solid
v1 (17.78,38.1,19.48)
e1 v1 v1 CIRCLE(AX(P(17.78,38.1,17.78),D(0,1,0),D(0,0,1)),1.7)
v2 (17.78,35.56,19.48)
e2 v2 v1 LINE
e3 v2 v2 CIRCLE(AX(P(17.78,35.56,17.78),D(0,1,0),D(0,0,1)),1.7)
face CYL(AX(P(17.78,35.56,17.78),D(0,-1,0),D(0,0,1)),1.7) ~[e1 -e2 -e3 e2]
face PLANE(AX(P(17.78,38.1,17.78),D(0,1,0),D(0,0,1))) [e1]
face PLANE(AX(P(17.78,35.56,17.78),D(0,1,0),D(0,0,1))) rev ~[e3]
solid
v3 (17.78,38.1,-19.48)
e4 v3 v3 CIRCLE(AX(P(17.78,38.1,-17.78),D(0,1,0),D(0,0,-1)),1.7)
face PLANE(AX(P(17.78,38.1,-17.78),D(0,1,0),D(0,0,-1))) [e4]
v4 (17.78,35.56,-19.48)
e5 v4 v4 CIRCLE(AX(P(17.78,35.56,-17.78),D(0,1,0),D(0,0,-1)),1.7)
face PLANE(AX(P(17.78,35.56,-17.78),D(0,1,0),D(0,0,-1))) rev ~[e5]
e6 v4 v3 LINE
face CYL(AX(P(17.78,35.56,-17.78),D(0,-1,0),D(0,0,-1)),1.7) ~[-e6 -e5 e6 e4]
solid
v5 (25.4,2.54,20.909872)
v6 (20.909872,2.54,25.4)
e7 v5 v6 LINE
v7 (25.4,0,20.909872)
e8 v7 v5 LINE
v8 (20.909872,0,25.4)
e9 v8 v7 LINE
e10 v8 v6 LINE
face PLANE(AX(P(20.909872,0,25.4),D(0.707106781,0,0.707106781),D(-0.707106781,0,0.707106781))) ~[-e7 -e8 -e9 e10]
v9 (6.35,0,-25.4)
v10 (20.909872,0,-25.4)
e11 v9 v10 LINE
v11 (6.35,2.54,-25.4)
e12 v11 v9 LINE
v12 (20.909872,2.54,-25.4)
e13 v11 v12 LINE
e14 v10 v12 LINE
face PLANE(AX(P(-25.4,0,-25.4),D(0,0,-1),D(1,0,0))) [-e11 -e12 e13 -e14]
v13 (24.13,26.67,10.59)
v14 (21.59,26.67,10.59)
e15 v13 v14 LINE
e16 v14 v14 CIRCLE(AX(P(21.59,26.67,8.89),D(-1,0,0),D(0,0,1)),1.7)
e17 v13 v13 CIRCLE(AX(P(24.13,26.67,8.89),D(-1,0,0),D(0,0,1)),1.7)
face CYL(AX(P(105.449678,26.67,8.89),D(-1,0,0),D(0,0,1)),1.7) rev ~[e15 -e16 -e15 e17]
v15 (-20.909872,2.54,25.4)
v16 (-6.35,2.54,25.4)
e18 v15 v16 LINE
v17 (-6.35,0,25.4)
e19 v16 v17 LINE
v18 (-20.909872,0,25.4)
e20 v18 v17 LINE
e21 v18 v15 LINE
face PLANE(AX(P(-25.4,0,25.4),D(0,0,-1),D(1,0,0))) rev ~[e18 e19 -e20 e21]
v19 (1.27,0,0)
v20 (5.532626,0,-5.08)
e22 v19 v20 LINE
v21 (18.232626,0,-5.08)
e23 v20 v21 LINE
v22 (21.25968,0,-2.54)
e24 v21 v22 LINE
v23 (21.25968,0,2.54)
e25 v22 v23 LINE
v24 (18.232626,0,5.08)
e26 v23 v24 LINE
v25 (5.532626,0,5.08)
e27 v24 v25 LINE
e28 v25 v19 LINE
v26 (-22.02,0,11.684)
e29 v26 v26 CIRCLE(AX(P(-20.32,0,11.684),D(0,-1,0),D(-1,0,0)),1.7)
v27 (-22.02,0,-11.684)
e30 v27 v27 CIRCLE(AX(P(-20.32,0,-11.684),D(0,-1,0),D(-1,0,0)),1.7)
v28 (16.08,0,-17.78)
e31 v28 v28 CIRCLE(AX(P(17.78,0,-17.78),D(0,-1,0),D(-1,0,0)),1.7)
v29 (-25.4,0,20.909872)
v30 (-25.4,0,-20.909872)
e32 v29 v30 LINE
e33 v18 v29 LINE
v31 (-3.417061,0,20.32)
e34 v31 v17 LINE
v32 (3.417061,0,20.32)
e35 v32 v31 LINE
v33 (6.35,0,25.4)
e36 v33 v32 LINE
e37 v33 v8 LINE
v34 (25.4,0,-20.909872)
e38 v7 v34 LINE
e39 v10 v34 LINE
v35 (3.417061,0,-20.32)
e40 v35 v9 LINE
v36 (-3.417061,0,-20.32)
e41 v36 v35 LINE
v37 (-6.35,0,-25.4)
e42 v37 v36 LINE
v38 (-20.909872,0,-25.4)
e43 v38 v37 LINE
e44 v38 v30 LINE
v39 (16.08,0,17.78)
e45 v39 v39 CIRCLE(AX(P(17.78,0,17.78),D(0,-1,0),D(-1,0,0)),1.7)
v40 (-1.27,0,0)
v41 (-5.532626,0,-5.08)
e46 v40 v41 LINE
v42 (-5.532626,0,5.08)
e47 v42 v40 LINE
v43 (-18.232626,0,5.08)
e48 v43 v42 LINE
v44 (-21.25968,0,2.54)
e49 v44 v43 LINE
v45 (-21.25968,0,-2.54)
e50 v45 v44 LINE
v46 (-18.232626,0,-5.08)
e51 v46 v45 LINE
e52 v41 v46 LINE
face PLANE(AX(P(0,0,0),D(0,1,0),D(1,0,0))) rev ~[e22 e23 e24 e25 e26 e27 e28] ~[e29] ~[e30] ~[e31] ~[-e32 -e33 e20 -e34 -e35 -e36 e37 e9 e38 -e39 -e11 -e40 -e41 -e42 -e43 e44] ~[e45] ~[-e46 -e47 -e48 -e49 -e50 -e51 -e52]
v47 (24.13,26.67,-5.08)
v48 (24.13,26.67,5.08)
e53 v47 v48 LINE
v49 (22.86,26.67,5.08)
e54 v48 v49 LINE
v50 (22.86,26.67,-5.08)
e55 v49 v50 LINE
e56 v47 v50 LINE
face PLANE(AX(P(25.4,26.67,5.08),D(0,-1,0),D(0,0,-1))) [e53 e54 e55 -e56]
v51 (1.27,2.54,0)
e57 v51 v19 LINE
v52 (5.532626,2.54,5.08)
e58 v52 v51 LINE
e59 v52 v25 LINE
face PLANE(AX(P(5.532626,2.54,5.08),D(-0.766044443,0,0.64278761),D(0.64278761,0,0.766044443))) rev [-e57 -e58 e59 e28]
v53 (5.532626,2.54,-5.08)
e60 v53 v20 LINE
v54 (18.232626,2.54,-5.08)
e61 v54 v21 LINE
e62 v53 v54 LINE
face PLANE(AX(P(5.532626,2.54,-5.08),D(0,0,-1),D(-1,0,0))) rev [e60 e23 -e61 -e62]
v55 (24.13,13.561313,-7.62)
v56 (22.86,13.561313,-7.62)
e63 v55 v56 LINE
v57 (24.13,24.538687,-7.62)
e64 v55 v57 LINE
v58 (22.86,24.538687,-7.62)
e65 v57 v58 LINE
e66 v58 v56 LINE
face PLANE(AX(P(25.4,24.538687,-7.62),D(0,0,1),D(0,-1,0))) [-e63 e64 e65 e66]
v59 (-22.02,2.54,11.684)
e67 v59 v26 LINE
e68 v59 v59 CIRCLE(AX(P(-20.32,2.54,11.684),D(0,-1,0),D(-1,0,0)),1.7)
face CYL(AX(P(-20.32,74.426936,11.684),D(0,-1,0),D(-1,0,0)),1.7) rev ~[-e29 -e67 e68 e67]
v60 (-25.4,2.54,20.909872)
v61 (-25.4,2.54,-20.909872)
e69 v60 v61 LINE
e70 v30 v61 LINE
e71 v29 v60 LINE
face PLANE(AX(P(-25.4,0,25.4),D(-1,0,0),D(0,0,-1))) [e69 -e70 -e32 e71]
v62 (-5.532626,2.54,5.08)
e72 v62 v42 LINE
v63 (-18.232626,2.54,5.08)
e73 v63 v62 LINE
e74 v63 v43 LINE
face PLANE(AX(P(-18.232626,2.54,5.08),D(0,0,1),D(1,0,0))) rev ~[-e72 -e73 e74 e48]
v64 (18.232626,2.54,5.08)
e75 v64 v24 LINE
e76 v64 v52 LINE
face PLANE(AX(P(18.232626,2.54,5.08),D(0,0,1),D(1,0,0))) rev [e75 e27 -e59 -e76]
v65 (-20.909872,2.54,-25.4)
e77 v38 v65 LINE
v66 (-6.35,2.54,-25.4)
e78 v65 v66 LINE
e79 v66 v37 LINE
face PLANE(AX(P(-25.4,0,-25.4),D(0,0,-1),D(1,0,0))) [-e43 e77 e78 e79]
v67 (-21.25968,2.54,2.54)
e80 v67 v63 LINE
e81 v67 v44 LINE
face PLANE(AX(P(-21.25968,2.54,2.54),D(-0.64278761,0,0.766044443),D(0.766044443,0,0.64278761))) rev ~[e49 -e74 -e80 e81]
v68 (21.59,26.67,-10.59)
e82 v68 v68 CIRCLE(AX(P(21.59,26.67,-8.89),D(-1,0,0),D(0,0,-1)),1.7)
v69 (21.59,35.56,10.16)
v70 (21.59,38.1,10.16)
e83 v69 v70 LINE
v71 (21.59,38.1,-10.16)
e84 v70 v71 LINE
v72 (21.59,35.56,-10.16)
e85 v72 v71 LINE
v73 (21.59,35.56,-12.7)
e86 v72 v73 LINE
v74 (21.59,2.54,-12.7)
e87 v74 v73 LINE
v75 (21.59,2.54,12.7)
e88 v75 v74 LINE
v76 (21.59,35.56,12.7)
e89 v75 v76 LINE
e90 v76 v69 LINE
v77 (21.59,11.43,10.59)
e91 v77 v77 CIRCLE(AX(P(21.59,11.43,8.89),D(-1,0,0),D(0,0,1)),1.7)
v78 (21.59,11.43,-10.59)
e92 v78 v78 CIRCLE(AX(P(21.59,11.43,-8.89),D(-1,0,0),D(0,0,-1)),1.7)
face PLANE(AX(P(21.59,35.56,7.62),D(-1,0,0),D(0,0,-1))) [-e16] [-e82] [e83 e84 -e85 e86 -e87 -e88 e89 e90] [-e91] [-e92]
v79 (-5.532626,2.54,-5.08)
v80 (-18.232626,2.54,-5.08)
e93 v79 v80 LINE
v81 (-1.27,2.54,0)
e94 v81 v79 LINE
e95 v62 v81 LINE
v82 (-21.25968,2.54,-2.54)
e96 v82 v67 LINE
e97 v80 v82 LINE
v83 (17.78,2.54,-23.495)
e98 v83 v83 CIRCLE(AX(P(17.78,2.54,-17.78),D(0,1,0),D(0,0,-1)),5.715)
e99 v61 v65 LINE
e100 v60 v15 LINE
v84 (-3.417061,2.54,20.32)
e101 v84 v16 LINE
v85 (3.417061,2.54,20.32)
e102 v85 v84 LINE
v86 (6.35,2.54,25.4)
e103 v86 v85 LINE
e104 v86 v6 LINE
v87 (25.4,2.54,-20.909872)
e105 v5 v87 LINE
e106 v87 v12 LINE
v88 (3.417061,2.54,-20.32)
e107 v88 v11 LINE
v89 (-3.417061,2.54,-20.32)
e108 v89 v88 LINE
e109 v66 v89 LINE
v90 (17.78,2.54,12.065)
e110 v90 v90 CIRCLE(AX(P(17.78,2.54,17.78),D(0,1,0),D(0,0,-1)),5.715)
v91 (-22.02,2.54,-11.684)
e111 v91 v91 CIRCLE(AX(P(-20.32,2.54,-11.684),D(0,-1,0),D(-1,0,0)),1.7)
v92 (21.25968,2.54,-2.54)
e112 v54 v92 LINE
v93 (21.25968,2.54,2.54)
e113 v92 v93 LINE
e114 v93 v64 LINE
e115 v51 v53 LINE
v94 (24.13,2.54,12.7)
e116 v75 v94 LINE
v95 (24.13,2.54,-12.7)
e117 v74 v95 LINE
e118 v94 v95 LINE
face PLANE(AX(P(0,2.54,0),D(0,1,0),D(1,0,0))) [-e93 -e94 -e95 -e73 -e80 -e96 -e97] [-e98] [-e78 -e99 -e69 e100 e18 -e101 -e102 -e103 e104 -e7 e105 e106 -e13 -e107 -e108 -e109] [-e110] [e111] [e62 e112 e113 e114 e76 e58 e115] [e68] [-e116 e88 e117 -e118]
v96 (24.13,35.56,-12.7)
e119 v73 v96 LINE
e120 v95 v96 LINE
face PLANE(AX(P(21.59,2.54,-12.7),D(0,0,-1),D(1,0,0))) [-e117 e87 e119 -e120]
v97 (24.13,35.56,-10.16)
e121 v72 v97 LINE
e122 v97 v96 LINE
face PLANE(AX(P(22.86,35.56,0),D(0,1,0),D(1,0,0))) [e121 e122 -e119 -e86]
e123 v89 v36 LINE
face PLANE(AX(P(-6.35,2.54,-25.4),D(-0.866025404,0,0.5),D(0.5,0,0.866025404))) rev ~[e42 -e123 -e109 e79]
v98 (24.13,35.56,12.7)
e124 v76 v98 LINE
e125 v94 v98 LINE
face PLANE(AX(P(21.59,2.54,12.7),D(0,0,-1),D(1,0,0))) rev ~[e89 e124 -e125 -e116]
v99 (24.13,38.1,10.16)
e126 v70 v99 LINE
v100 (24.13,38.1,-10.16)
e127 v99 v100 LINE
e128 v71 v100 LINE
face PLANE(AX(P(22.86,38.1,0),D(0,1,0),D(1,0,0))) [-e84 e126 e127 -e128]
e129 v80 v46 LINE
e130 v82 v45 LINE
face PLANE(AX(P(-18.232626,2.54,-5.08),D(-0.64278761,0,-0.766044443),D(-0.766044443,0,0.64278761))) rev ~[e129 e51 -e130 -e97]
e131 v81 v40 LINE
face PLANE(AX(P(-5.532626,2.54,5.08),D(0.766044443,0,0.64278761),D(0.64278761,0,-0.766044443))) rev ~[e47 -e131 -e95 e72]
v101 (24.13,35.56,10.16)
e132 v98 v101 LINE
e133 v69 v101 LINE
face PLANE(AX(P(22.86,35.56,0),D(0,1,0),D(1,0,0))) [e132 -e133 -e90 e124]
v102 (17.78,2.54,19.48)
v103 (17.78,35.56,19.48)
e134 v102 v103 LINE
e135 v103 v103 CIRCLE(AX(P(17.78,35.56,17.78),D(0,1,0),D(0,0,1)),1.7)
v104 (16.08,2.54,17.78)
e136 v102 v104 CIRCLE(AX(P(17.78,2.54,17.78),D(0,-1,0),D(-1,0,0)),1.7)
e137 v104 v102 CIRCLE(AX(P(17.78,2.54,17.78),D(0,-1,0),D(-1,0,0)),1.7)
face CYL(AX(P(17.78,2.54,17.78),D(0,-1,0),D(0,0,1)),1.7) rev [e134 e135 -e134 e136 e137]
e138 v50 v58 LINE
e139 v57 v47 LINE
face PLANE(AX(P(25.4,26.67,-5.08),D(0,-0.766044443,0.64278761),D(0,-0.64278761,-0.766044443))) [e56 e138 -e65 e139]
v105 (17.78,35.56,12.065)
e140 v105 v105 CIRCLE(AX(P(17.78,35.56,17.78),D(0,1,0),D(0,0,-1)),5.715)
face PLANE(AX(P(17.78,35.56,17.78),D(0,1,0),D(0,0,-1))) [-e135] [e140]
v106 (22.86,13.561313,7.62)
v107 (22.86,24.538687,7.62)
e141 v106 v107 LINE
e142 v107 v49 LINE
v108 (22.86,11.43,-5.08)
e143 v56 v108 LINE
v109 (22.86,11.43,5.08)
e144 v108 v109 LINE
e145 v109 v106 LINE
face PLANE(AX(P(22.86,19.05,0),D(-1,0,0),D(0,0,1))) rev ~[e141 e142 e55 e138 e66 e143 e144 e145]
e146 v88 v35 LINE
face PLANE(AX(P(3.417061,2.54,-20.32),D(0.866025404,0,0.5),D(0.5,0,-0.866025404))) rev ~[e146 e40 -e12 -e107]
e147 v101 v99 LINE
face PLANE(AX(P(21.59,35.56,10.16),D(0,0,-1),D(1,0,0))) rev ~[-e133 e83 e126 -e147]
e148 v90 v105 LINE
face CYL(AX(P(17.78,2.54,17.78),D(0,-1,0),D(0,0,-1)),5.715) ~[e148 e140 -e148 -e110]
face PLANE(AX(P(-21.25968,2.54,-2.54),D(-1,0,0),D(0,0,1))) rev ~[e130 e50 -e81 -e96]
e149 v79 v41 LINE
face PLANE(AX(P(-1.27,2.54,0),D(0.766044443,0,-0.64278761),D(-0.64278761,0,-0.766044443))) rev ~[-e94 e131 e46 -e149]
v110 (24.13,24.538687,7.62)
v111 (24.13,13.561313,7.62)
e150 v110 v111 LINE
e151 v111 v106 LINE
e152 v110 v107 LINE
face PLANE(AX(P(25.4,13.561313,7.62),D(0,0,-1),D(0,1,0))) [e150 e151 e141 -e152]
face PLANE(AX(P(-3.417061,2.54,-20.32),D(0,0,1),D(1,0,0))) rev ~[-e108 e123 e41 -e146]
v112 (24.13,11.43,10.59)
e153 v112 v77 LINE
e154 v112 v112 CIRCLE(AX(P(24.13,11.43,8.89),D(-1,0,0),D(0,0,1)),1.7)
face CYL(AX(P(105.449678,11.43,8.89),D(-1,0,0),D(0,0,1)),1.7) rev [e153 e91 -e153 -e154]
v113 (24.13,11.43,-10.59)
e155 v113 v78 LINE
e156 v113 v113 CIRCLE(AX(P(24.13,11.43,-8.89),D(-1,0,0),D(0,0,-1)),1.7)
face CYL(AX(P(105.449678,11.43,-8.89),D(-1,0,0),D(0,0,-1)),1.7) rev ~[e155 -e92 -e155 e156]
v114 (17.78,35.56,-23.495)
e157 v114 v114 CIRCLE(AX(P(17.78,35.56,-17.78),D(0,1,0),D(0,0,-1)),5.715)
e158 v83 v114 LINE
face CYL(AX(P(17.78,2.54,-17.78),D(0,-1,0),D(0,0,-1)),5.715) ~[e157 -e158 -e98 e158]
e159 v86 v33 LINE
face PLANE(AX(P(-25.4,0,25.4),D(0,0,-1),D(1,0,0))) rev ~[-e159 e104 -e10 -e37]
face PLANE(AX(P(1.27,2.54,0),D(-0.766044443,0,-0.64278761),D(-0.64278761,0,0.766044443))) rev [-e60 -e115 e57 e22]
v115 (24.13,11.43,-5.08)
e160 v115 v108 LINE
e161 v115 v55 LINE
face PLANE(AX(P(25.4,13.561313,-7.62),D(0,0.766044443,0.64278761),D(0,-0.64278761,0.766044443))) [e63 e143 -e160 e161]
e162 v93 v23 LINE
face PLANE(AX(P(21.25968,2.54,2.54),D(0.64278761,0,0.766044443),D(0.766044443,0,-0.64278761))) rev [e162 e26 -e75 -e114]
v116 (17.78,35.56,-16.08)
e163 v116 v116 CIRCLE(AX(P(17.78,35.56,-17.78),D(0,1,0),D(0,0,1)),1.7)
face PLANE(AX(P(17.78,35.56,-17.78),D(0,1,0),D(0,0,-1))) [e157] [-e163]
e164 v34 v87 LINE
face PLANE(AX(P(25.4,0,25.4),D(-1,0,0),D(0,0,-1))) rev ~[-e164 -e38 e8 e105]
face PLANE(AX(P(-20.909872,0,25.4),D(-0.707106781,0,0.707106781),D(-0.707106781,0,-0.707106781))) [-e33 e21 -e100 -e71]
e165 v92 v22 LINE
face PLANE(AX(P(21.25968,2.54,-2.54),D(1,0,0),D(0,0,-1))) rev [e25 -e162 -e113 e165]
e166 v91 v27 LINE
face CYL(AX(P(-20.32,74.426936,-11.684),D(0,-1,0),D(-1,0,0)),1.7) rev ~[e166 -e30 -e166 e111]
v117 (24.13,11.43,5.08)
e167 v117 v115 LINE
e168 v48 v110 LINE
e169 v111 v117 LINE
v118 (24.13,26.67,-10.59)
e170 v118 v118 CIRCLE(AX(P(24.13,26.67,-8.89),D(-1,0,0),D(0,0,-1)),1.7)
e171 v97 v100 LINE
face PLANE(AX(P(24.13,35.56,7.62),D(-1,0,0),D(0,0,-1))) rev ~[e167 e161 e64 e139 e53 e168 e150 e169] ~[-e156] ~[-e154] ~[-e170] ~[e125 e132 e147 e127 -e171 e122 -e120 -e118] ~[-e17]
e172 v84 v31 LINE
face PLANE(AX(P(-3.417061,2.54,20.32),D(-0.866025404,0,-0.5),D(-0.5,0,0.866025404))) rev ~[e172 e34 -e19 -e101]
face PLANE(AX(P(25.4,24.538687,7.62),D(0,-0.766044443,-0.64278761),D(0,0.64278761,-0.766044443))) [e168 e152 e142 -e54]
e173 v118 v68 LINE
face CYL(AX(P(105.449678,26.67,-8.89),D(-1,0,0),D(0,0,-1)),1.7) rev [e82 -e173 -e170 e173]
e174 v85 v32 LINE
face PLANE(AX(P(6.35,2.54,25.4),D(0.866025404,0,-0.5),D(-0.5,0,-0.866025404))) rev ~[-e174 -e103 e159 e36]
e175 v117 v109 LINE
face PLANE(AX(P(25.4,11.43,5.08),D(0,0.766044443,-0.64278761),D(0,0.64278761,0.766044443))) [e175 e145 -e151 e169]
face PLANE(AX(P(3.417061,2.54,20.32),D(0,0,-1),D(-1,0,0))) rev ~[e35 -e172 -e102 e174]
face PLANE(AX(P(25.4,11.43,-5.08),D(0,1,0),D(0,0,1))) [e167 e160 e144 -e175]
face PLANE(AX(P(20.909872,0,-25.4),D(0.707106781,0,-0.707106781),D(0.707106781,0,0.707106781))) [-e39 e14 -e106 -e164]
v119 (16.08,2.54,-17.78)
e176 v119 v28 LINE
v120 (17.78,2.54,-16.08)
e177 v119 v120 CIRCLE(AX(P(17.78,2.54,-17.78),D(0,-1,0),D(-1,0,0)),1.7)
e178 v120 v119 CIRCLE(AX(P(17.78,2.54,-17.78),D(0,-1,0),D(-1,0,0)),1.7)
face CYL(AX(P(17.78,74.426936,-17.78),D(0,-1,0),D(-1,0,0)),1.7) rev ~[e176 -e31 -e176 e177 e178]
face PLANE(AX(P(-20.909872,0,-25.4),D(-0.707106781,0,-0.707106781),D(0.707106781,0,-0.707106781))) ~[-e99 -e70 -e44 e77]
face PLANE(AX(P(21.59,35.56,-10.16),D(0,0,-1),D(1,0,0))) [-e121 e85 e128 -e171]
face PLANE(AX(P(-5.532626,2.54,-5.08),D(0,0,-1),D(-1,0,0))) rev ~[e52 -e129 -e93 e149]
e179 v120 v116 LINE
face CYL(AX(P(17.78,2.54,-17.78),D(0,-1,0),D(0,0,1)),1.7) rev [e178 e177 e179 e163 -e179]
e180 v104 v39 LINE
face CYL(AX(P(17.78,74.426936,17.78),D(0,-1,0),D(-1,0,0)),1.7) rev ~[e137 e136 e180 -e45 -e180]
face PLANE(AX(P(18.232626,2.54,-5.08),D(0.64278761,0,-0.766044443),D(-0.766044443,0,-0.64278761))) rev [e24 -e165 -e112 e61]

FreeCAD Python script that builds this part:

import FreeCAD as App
import Part
import Sketcher

V = App.Vector
Q = App.Units.Quantity

doc = App.newDocument("Part")
params = doc.addObject("Spreadsheet::Sheet", "Params")
for row, (alias, value) in enumerate([
    ("sketch1_width", "2 in"),
    ("pad1_length", "0.1 in"),
    ("hole_diameter", "3.4 mm"),
    ("hole2_diameter", "3.4 mm"),
    ("sketch4_length", "0.25 in"),
    ("pocket1_length", "39.550715 mm"),
    ("sketch5_length", "0.25 in"),
    ("pocket2_length", "39.550715 mm"),
    ("sketch6_width", "0.5 in"),
    ("pocket3_length", "0.1 in"),
    ("sketch7_width", "0.5 in"),
    ("sketch7_height", "0.2 in"),
    ("pocket4_length", "0.1 in"),
    ("sketch8_diameter", "0.45 in"),
    ("pad2_length", "1.3 in"),
    ("sketch9_height", "1 in"),
    ("sketch9_width", "0.1 in"),
    ("pad3_length", "1.3 in"),
    ("sketch10_width", "0.1 in"),
    ("pad4_length", "0.1 in"),
    ("sketch11_height", "0.4 in"),
    ("pocket5_length", "0.1 in"),
    ("hole3_diameter", "3.4 mm"),
    ("hole4_diameter", "3.4 mm"),
    ("sketch14_width", "0.1 in"),
    ("sketch14_height", "0.6 in"),
    ("pad5_length", "0.1 in"),
    ("pad6_length", "0.1 in"),
    ("pad7_length", "0.1 in"),
], start=1):
    params.set(f"A{row}", alias)
    params.set(f"B{row}", "=" + value)
    params.setAlias(f"B{row}", alias)

body = doc.addObject("PartDesign::Body", "Body")

# Sketch on XZ plane
sketch1 = body.newObject("Sketcher::SketchObject", "Sketch")
sketch1.AttachmentSupport = (doc.getObject("XZ_Plane"), [""])
sketch1.MapMode = "FlatFace"
sketch1.addGeometry([
    Part.LineSegment(V(-25.4, -25.4, 0), V(-25.4, 25.4, 0)),
    Part.LineSegment(V(-25.4, 25.4, 0), V(25.4, 25.4, 0)),
    Part.LineSegment(V(25.4, 25.4, 0), V(25.4, -25.4, 0)),
    Part.LineSegment(V(25.4, -25.4, 0), V(-25.4, -25.4, 0)),
], False)
sketch1.addConstraint([
    Sketcher.Constraint("Coincident", 0, 2, 1, 1),
    Sketcher.Constraint("Coincident", 1, 2, 2, 1),
    Sketcher.Constraint("Coincident", 2, 2, 3, 1),
    Sketcher.Constraint("Coincident", 3, 2, 0, 1),
    Sketcher.Constraint("Vertical", 0),
    Sketcher.Constraint("Horizontal", 1),
    Sketcher.Constraint("Vertical", 2),
    Sketcher.Constraint("Horizontal", 3),
    Sketcher.Constraint("Symmetric", 0, 2, 2, 2, -1, 1),
    Sketcher.Constraint("Equal", 3, 0),
    Sketcher.Constraint("DistanceX", 1, 1, 1, 2, Q("2 in")),
])
sketch1.setExpression("Constraints[10]", "Params.sketch1_width")
pad1 = body.newObject("PartDesign::Pad", "Pad")
pad1.Profile = sketch1
pad1.setExpression("Length", "Params.pad1_length")
pad1.Reversed = True

# Sketch on XZ plane
sketch2 = body.newObject("Sketcher::SketchObject", "Sketch001")
sketch2.AttachmentSupport = (doc.getObject("XZ_Plane"), [""])
sketch2.MapMode = "FlatFace"
sketch2.AttachmentOffset = App.Placement(V(0, 0, -0.1 * 25.4), App.Rotation())
sketch2.addGeometry([
    Part.Circle(V(-20.32, 11.684, 0), V(0, 0, 1), 1.7),
    Part.Circle(V(-20.32, -11.684, 0), V(0, 0, 1), 1.7),
], False)
sketch2.addConstraint([
    Sketcher.Constraint("Equal", 0, 1),
    Sketcher.Constraint("Symmetric", 0, 3, 1, 3, -1),
    Sketcher.Constraint("DistanceX", 0, 3, -1, 1, Q("0.8 in")),
    Sketcher.Constraint("Diameter", 0, 3.4),
    Sketcher.Constraint("DistanceY", -1, 1, 0, 3, Q("0.46 in")),
])
doc.recompute()
hole = body.newObject("PartDesign::Hole", "Hole")
hole.Profile = sketch2
hole.ThreadType = "None"
hole.setExpression("Diameter", "Params.hole_diameter")
hole.DepthType = "ThroughAll"
hole.Reversed = True

# Sketch on XZ plane
sketch3 = body.newObject("Sketcher::SketchObject", "Sketch002")
sketch3.AttachmentSupport = (doc.getObject("XZ_Plane"), [""])
sketch3.MapMode = "FlatFace"
sketch3.AttachmentOffset = App.Placement(V(0, 0, -0.1 * 25.4), App.Rotation())
sketch3.addGeometry([
    Part.Circle(V(17.78, 17.78, 0), V(0, 0, 1), 1.7),
    Part.Circle(V(17.78, -17.78, 0), V(0, 0, 1), 1.7),
], False)
sketch3.addConstraint([
    Sketcher.Constraint("Equal", 0, 1),
    Sketcher.Constraint("Symmetric", 0, 3, 1, 3, -1),
    Sketcher.Constraint("DistanceX", -1, 1, 0, 3, Q("0.7 in")),
    Sketcher.Constraint("DistanceY", -1, 1, 0, 3, Q("0.7 in")),
    Sketcher.Constraint("Diameter", 0, 3.4),
])
doc.recompute()
hole2 = body.newObject("PartDesign::Hole", "Hole001")
hole2.Profile = sketch3
hole2.ThreadType = "None"
hole2.setExpression("Diameter", "Params.hole2_diameter")
hole2.DepthType = "ThroughAll"
hole2.Reversed = True

# Sketch on XZ plane
sketch4 = body.newObject("Sketcher::SketchObject", "Sketch003")
sketch4.AttachmentSupport = (doc.getObject("XZ_Plane"), [""])
sketch4.MapMode = "FlatFace"
sketch4.addGeometry([
    Part.LineSegment(V(-25.4, 25.4, 0), V(-20.909872, 25.4, 0)),
    Part.LineSegment(V(-20.909872, 25.4, 0), V(-25.4, 20.909872, 0)),
    Part.LineSegment(V(-25.4, 20.909872, 0), V(-25.4, 25.4, 0)),
], False)
sketch4.addConstraint([
    Sketcher.Constraint("Coincident", 0, 2, 1, 1),
    Sketcher.Constraint("Coincident", 1, 2, 2, 1),
    Sketcher.Constraint("Coincident", 2, 2, 0, 1),
    Sketcher.Constraint("Horizontal", 0),
    Sketcher.Constraint("Vertical", 2),
    Sketcher.Constraint("Equal", 0, 2),
    Sketcher.Constraint("DistanceY", -1, 1, 0, 2, Q("1 in")),
    Sketcher.Constraint("DistanceX", 1, 2, -1, 1, Q("1 in")),
    Sketcher.Constraint("Distance", 1, Q("0.25 in")),
])
sketch4.setExpression("Constraints[8]", "Params.sketch4_length")
pocket1 = body.newObject("PartDesign::Pocket", "Pocket")
pocket1.Profile = sketch4
pocket1.setExpression("Length", "Params.pocket1_length")
doc.recompute()

mirrored = body.newObject("PartDesign::Mirrored", "Mirrored")
mirrored.Originals = [pocket1]
mirrored.MirrorPlane = (doc.getObject("YZ_Plane"), [""])
body.Tip = mirrored
doc.recompute()

mirrored2 = body.newObject("PartDesign::Mirrored", "Mirrored001")
mirrored2.Originals = [pocket1]
mirrored2.MirrorPlane = (doc.getObject("XY_Plane"), [""])
body.Tip = mirrored2

# Sketch on XZ plane
sketch5 = body.newObject("Sketcher::SketchObject", "Sketch004")
sketch5.AttachmentSupport = (doc.getObject("XZ_Plane"), [""])
sketch5.MapMode = "FlatFace"
sketch5.addGeometry([
    Part.LineSegment(V(25.4, -25.4, 0), V(20.909872, -25.4, 0)),
    Part.LineSegment(V(20.909872, -25.4, 0), V(25.4, -20.909872, 0)),
    Part.LineSegment(V(25.4, -20.909872, 0), V(25.4, -25.4, 0)),
], False)
sketch5.addConstraint([
    Sketcher.Constraint("Coincident", 0, 2, 1, 1),
    Sketcher.Constraint("Coincident", 1, 2, 2, 1),
    Sketcher.Constraint("Coincident", 2, 2, 0, 1),
    Sketcher.Constraint("Horizontal", 0),
    Sketcher.Constraint("Vertical", 2),
    Sketcher.Constraint("Equal", 0, 2),
    Sketcher.Constraint("DistanceY", 0, 2, -1, 1, Q("1 in")),
    Sketcher.Constraint("DistanceX", -1, 1, 1, 2, Q("1 in")),
    Sketcher.Constraint("Distance", 1, Q("0.25 in")),
])
sketch5.setExpression("Constraints[8]", "Params.sketch5_length")
pocket2 = body.newObject("PartDesign::Pocket", "Pocket001")
pocket2.Profile = sketch5
pocket2.setExpression("Length", "Params.pocket2_length")

# Sketch on XZ plane
sketch6 = body.newObject("Sketcher::SketchObject", "Sketch005")
sketch6.AttachmentSupport = (doc.getObject("XZ_Plane"), [""])
sketch6.MapMode = "FlatFace"
sketch6.AttachmentOffset = App.Placement(V(0, 0, -0.1 * 25.4), App.Rotation())
sketch6.addGeometry([
    Part.LineSegment(V(-6.35, 25.4, 0), V(6.35, 25.4, 0)),  # 0
    Part.LineSegment(V(6.35, 25.4, 0), V(3.417061, 20.32, 0)),  # 1
    Part.LineSegment(V(3.417061, 20.32, 0), V(-3.417061, 20.32, 0)),  # 2
    Part.LineSegment(V(-3.417061, 20.32, 0), V(-6.35, 25.4, 0)),  # 3
    Part.LineSegment(V(-6.35, -25.4, 0), V(-3.417061, -20.32, 0)),  # 4
    Part.LineSegment(V(-3.417061, -20.32, 0), V(3.417061, -20.32, 0)),  # 5
    Part.LineSegment(V(3.417061, -20.32, 0), V(6.35, -25.4, 0)),  # 6
    Part.LineSegment(V(6.35, -25.4, 0), V(-6.35, -25.4, 0)),  # 7
], False)
sketch6.addConstraint([
    Sketcher.Constraint("Coincident", 0, 2, 1, 1),
    Sketcher.Constraint("Coincident", 1, 2, 2, 1),
    Sketcher.Constraint("Coincident", 2, 2, 3, 1),
    Sketcher.Constraint("Coincident", 3, 2, 0, 1),
    Sketcher.Constraint("Coincident", 4, 2, 5, 1),
    Sketcher.Constraint("Coincident", 5, 2, 6, 1),
    Sketcher.Constraint("Coincident", 6, 2, 7, 1),
    Sketcher.Constraint("Coincident", 7, 2, 4, 1),
    Sketcher.Constraint("Horizontal", 0),
    Sketcher.Constraint("Horizontal", 2),
    Sketcher.Constraint("Horizontal", 5),
    Sketcher.Constraint("Horizontal", 7),
    Sketcher.Constraint("Symmetric", 1, 2, 4, 2, -1, 1),
    Sketcher.Constraint("Symmetric", 3, 2, 6, 2, -1, 1),
    Sketcher.Constraint("Parallel", 1, 4),
    Sketcher.Constraint("Parallel", 3, 6),
    Sketcher.Constraint("Vertical", 2, 2, 4, 2),
    Sketcher.Constraint("Vertical", 0, 2, 6, 2),
    Sketcher.Constraint("DistanceX", 0, 1, 0, 2, Q("0.5 in")),
    Sketcher.Constraint("DistanceY", -1, 1, 0, 2, Q("1 in")),
    Sketcher.Constraint("Angle", 1, Q("-120 deg")),
    Sketcher.Constraint("DistanceY", -1, 1, 1, 2, Q("0.8 in")),
])
sketch6.setExpression("Constraints[18]", "Params.sketch6_width")
pocket3 = body.newObject("PartDesign::Pocket", "Pocket002")
pocket3.Profile = sketch6
pocket3.setExpression("Length", "Params.pocket3_length")
pocket3.Reversed = True

# Sketch on XZ plane
sketch7 = body.newObject("Sketcher::SketchObject", "Sketch006")
sketch7.AttachmentSupport = (doc.getObject("XZ_Plane"), [""])
sketch7.MapMode = "FlatFace"
sketch7.AttachmentOffset = App.Placement(V(0, 0, -0.1 * 25.4), App.Rotation())
sketch7.addGeometry([
    Part.LineSegment(V(-21.25968, -2.54, 0), V(-21.25968, 2.54, 0)),  # 0
    Part.LineSegment(V(-21.25968, 2.54, 0), V(-18.232626, 5.08, 0)),  # 1
    Part.LineSegment(V(-18.232626, 5.08, 0), V(-5.532626, 5.08, 0)),  # 2
    Part.LineSegment(V(-5.532626, 5.08, 0), V(-1.27, 0, 0)),  # 3
    Part.LineSegment(V(-1.27, 0, 0), V(-5.532626, -5.08, 0)),  # 4
    Part.LineSegment(V(-5.532626, -5.08, 0), V(-18.232626, -5.08, 0)),  # 5
    Part.LineSegment(V(-18.232626, -5.08, 0), V(-21.25968, -2.54, 0)),  # 6
], False)
sketch7.addConstraint([
    Sketcher.Constraint("Coincident", 0, 2, 1, 1),
    Sketcher.Constraint("Coincident", 1, 2, 2, 1),
    Sketcher.Constraint("Coincident", 2, 2, 3, 1),
    Sketcher.Constraint("Coincident", 3, 2, 4, 1),
    Sketcher.Constraint("Coincident", 4, 2, 5, 1),
    Sketcher.Constraint("Coincident", 5, 2, 6, 1),
    Sketcher.Constraint("Coincident", 6, 2, 0, 1),
    Sketcher.Constraint("Vertical", 0),
    Sketcher.Constraint("Horizontal", 2),
    Sketcher.Constraint("Horizontal", 5),
    Sketcher.Constraint("Symmetric", 2, 2, 4, 2, -1),
    Sketcher.Constraint("PointOnObject", 3, 2, -1),
    Sketcher.Constraint("Perpendicular", 1, 3),
    Sketcher.Constraint("Perpendicular", 4, 6),
    Sketcher.Constraint("Vertical", 1, 2, 5, 2),
    Sketcher.Constraint("DistanceX", 2, 1, 2, 2, Q("0.5 in")),
    Sketcher.Constraint("DistanceY", 0, 1, 0, 2, Q("0.2 in")),
    Sketcher.Constraint("Angle", 1, Q("40 deg")),
    Sketcher.Constraint("DistanceY", -1, 1, 1, 2, Q("0.2 in")),
    Sketcher.Constraint("DistanceX", 3, 2, -1, 1, Q("0.05 in")),
])
sketch7.setExpression("Constraints[15]", "Params.sketch7_width")
sketch7.setExpression("Constraints[16]", "Params.sketch7_height")
pocket4 = body.newObject("PartDesign::Pocket", "Pocket003")
pocket4.Profile = sketch7
pocket4.setExpression("Length", "Params.pocket4_length")
pocket4.Reversed = True
doc.recompute()

mirrored3 = body.newObject("PartDesign::Mirrored", "Mirrored002")
mirrored3.Originals = [pocket4]
mirrored3.MirrorPlane = (doc.getObject("YZ_Plane"), [""])
body.Tip = mirrored3

# Sketch on XZ plane
sketch8 = body.newObject("Sketcher::SketchObject", "Sketch007")
sketch8.AttachmentSupport = (doc.getObject("XZ_Plane"), [""])
sketch8.MapMode = "FlatFace"
sketch8.AttachmentOffset = App.Placement(V(0, 0, -0.1 * 25.4), App.Rotation())
sketch8.addGeometry([
    Part.Circle(V(17.78, 17.78, 0), V(0, 0, 1), 5.715),
    Part.Circle(V(17.78, 17.78, 0), V(0, 0, 1), 1.7),
    Part.Circle(V(17.78, -17.78, 0), V(0, 0, 1), 5.715),
    Part.Circle(V(17.78, -17.78, 0), V(0, 0, 1), 1.7),
], False)
sketch8.addConstraint([
    Sketcher.Constraint("Coincident", 1, 3, 0, 3),
    Sketcher.Constraint("Coincident", 3, 3, 2, 3),
    Sketcher.Constraint("Equal", 0, 2),
    Sketcher.Constraint("Equal", 1, 3),
    Sketcher.Constraint("Symmetric", 0, 3, 2, 3, -1),
    Sketcher.Constraint("Diameter", 0, Q("0.45 in")),
    Sketcher.Constraint("DistanceX", -1, 1, 0, 3, Q("0.7 in")),
    Sketcher.Constraint("DistanceY", -1, 1, 0, 3, Q("0.7 in")),
    Sketcher.Constraint("Diameter", 1, 3.4),
])
sketch8.setExpression("Constraints[5]", "Params.sketch8_diameter")
pad2 = body.newObject("PartDesign::Pad", "Pad001")
pad2.Profile = sketch8
pad2.setExpression("Length", "Params.pad2_length")
pad2.Reversed = True

# Sketch on XZ plane
sketch9 = body.newObject("Sketcher::SketchObject", "Sketch008")
sketch9.AttachmentSupport = (doc.getObject("XZ_Plane"), [""])
sketch9.MapMode = "FlatFace"
sketch9.AttachmentOffset = App.Placement(V(0, 0, -0.1 * 25.4), App.Rotation())
sketch9.addGeometry([
    Part.LineSegment(V(21.59, -12.7, 0), V(21.59, 12.7, 0)),
    Part.LineSegment(V(21.59, 12.7, 0), V(24.13, 12.7, 0)),
    Part.LineSegment(V(24.13, 12.7, 0), V(24.13, -12.7, 0)),
    Part.LineSegment(V(24.13, -12.7, 0), V(21.59, -12.7, 0)),
], False)
sketch9.addConstraint([
    Sketcher.Constraint("Coincident", 0, 2, 1, 1),
    Sketcher.Constraint("Coincident", 1, 2, 2, 1),
    Sketcher.Constraint("Coincident", 2, 2, 3, 1),
    Sketcher.Constraint("Coincident", 3, 2, 0, 1),
    Sketcher.Constraint("Vertical", 0),
    Sketcher.Constraint("Horizontal", 1),
    Sketcher.Constraint("Vertical", 2),
    Sketcher.Constraint("Horizontal", 3),
    Sketcher.Constraint("DistanceY", 0, 1, 0, 2, Q("1 in")),
    Sketcher.Constraint("DistanceX", 1, 1, 1, 2, Q("0.1 in")),
    Sketcher.Constraint("DistanceY", -1, 1, 0, 2, Q("0.5 in")),
    Sketcher.Constraint("DistanceX", -1, 1, 0, 2, Q("0.85 in")),
])
sketch9.setExpression("Constraints[8]", "Params.sketch9_height")
sketch9.setExpression("Constraints[9]", "Params.sketch9_width")
pad3 = body.newObject("PartDesign::Pad", "Pad002")
pad3.Profile = sketch9
pad3.setExpression("Length", "Params.pad3_length")
pad3.Reversed = True

# Sketch on XZ plane
sketch10 = body.newObject("Sketcher::SketchObject", "Sketch009")
sketch10.AttachmentSupport = (doc.getObject("XZ_Plane"), [""])
sketch10.MapMode = "FlatFace"
sketch10.AttachmentOffset = App.Placement(V(0, 0, -1.4 * 25.4), App.Rotation())
sketch10.addGeometry([
    Part.LineSegment(V(21.59, 7.62, 0), V(21.59, 10.16, 0)),  # 0
    Part.LineSegment(V(21.59, 10.16, 0), V(24.13, 10.16, 0)),  # 1
    Part.LineSegment(V(24.13, 10.16, 0), V(24.13, 7.62, 0)),  # 2
    Part.LineSegment(V(24.13, 7.62, 0), V(21.59, 7.62, 0)),  # 3
    Part.LineSegment(V(21.59, -10.16, 0), V(21.59, -7.62, 0)),  # 4
    Part.LineSegment(V(21.59, -7.62, 0), V(24.13, -7.62, 0)),  # 5
    Part.LineSegment(V(24.13, -7.62, 0), V(24.13, -10.16, 0)),  # 6
    Part.LineSegment(V(24.13, -10.16, 0), V(21.59, -10.16, 0)),  # 7
], False)
sketch10.addConstraint([
    Sketcher.Constraint("Coincident", 0, 2, 1, 1),
    Sketcher.Constraint("Coincident", 1, 2, 2, 1),
    Sketcher.Constraint("Coincident", 2, 2, 3, 1),
    Sketcher.Constraint("Coincident", 3, 2, 0, 1),
    Sketcher.Constraint("Coincident", 4, 2, 5, 1),
    Sketcher.Constraint("Coincident", 5, 2, 6, 1),
    Sketcher.Constraint("Coincident", 6, 2, 7, 1),
    Sketcher.Constraint("Coincident", 7, 2, 4, 1),
    Sketcher.Constraint("Vertical", 0),
    Sketcher.Constraint("Horizontal", 1),
    Sketcher.Constraint("Vertical", 2),
    Sketcher.Constraint("Horizontal", 3),
    Sketcher.Constraint("Vertical", 4),
    Sketcher.Constraint("Horizontal", 5),
    Sketcher.Constraint("Vertical", 6),
    Sketcher.Constraint("Horizontal", 7),
    Sketcher.Constraint("Symmetric", 3, 2, 4, 2, -1),
    Sketcher.Constraint("Symmetric", 1, 2, 6, 2, -1),
    Sketcher.Constraint("Equal", 7, 0),
    Sketcher.Constraint("DistanceX", 1, 1, 1, 2, Q("0.1 in")),
    Sketcher.Constraint("DistanceY", -1, 1, 0, 2, Q("0.4 in")),
    Sketcher.Constraint("DistanceX", -1, 1, 0, 2, Q("0.85 in")),
])
sketch10.setExpression("Constraints[19]", "Params.sketch10_width")
pad4 = body.newObject("PartDesign::Pad", "Pad003")
pad4.Profile = sketch10
pad4.setExpression("Length", "Params.pad4_length")
pad4.Reversed = True

# Sketch on YZ plane
sketch11 = body.newObject("Sketcher::SketchObject", "Sketch010")
sketch11.AttachmentSupport = (doc.getObject("YZ_Plane"), [""])
sketch11.MapMode = "FlatFace"
sketch11.AttachmentOffset = App.Placement(V(0, 0, 1 * 25.4), App.Rotation())
sketch11.addGeometry([
    Part.LineSegment(V(24.538687, 7.62, 0), V(13.561313, 7.62, 0)),  # 0
    Part.LineSegment(V(13.561313, 7.62, 0), V(11.43, 5.08, 0)),  # 1
    Part.LineSegment(V(11.43, 5.08, 0), V(11.43, -5.08, 0)),  # 2
    Part.LineSegment(V(11.43, -5.08, 0), V(13.561313, -7.62, 0)),  # 3
    Part.LineSegment(V(13.561313, -7.62, 0), V(24.538687, -7.62, 0)),  # 4
    Part.LineSegment(V(24.538687, -7.62, 0), V(26.67, -5.08, 0)),  # 5
    Part.LineSegment(V(26.67, -5.08, 0), V(26.67, 5.08, 0)),  # 6
    Part.LineSegment(V(26.67, 5.08, 0), V(24.538687, 7.62, 0)),  # 7
], False)
sketch11.addConstraint([
    Sketcher.Constraint("Coincident", 0, 2, 1, 1),
    Sketcher.Constraint("Coincident", 1, 2, 2, 1),
    Sketcher.Constraint("Coincident", 2, 2, 3, 1),
    Sketcher.Constraint("Coincident", 3, 2, 4, 1),
    Sketcher.Constraint("Coincident", 4, 2, 5, 1),
    Sketcher.Constraint("Coincident", 5, 2, 6, 1),
    Sketcher.Constraint("Coincident", 6, 2, 7, 1),
    Sketcher.Constraint("Coincident", 7, 2, 0, 1),
    Sketcher.Constraint("Horizontal", 0),
    Sketcher.Constraint("Vertical", 2),
    Sketcher.Constraint("Horizontal", 4),
    Sketcher.Constraint("Vertical", 6),
    Sketcher.Constraint("Symmetric", 0, 2, 3, 2, -1),
    Sketcher.Constraint("Parallel", 1, 5),
    Sketcher.Constraint("Parallel", 3, 7),
    Sketcher.Constraint("Horizontal", 2, 2, 5, 2),
    Sketcher.Constraint("Horizontal", 1, 2, 6, 2),
    Sketcher.Constraint("Vertical", 4, 2, 7, 2),
    Sketcher.Constraint("DistanceY", 2, 2, 2, 1, Q("0.4 in")),
    Sketcher.Constraint("Angle", 1, Q("-130 deg")),
    Sketcher.Constraint("DistanceY", -1, 1, 0, 2, Q("0.3 in")),
    Sketcher.Constraint("DistanceX", 2, 2, 5, 2, Q("0.6 in")),
    Sketcher.Constraint("DistanceX", -1, 1, 1, 2, Q("0.45 in")),
])
sketch11.setExpression("Constraints[18]", "Params.sketch11_height")
pocket5 = body.newObject("PartDesign::Pocket", "Pocket004")
pocket5.Profile = sketch11
pocket5.setExpression("Length", "Params.pocket5_length")

# Sketch on YZ plane
sketch12 = body.newObject("Sketcher::SketchObject", "Sketch011")
sketch12.AttachmentSupport = (doc.getObject("YZ_Plane"), [""])
sketch12.MapMode = "FlatFace"
sketch12.AttachmentOffset = App.Placement(V(0, 0, 0.95 * 25.4), App.Rotation())
sketch12.addGeometry(Part.Circle(V(26.67, 8.89, 0), V(0, 0, 1), 1.7), False)
sketch12.addConstraint([
    Sketcher.Constraint("Diameter", 0, 3.4),
    Sketcher.Constraint("DistanceX", -1, 1, 0, 3, Q("1.05 in")),
    Sketcher.Constraint("DistanceY", -1, 1, 0, 3, Q("0.35 in")),
])
doc.recompute()
hole3 = body.newObject("PartDesign::Hole", "Hole002")
hole3.Profile = sketch12
hole3.ThreadType = "None"
hole3.setExpression("Diameter", "Params.hole3_diameter")
hole3.DepthType = "ThroughAll"
doc.recompute()

mirrored4 = body.newObject("PartDesign::Mirrored", "Mirrored003")
mirrored4.Originals = [hole3]
mirrored4.MirrorPlane = (doc.getObject("XY_Plane"), [""])
body.Tip = mirrored4
doc.recompute()

datumplane = body.newObject("PartDesign::Plane", "DatumPlane")
datumplane.AttachmentSupport = (doc.getObject("XZ_Plane"), [""])
datumplane.MapMode = "FlatFace"
datumplane.AttachmentOffset = App.Placement(V(0, 0, -0.75 * 25.4), App.Rotation())
mirrored5 = body.newObject("PartDesign::Mirrored", "Mirrored004")
mirrored5.Originals = [hole3]
mirrored5.MirrorPlane = (datumplane, [""])
body.Tip = mirrored5

# Sketch on YZ plane
sketch13 = body.newObject("Sketcher::SketchObject", "Sketch012")
sketch13.AttachmentSupport = (doc.getObject("YZ_Plane"), [""])
sketch13.MapMode = "FlatFace"
sketch13.AttachmentOffset = App.Placement(V(0, 0, 0.95 * 25.4), App.Rotation())
sketch13.addGeometry(Part.Circle(V(11.43, -8.89, 0), V(0, 0, 1), 1.7), False)
sketch13.addConstraint([
    Sketcher.Constraint("Diameter", 0, 3.4),
    Sketcher.Constraint("DistanceX", -1, 1, 0, 3, Q("0.45 in")),
    Sketcher.Constraint("DistanceY", 0, 3, -1, 1, Q("0.35 in")),
])
doc.recompute()
hole4 = body.newObject("PartDesign::Hole", "Hole003")
hole4.Profile = sketch13
hole4.ThreadType = "None"
hole4.setExpression("Diameter", "Params.hole4_diameter")
hole4.DepthType = "ThroughAll"

# Sketch on XZ plane
sketch14 = body.newObject("Sketcher::SketchObject", "Sketch013")
sketch14.AttachmentSupport = (doc.getObject("XZ_Plane"), [""])
sketch14.MapMode = "FlatFace"
sketch14.AttachmentOffset = App.Placement(V(0, 0, -1.4 * 25.4), App.Rotation())
sketch14.addGeometry([
    Part.LineSegment(V(21.59, -7.62, 0), V(21.59, 7.62, 0)),
    Part.LineSegment(V(21.59, 7.62, 0), V(24.13, 7.62, 0)),
    Part.LineSegment(V(24.13, 7.62, 0), V(24.13, -7.62, 0)),
    Part.LineSegment(V(24.13, -7.62, 0), V(21.59, -7.62, 0)),
], False)
sketch14.addConstraint([
    Sketcher.Constraint("Coincident", 0, 2, 1, 1),
    Sketcher.Constraint("Coincident", 1, 2, 2, 1),
    Sketcher.Constraint("Coincident", 2, 2, 3, 1),
    Sketcher.Constraint("Coincident", 3, 2, 0, 1),
    Sketcher.Constraint("Vertical", 0),
    Sketcher.Constraint("Horizontal", 1),
    Sketcher.Constraint("Vertical", 2),
    Sketcher.Constraint("Horizontal", 3),
    Sketcher.Constraint("DistanceX", 1, 1, 1, 2, Q("0.1 in")),
    Sketcher.Constraint("DistanceY", 0, 1, 0, 2, Q("0.6 in")),
    Sketcher.Constraint("DistanceY", -1, 1, 0, 2, Q("0.3 in")),
    Sketcher.Constraint("DistanceX", -1, 1, 0, 2, Q("0.85 in")),
])
sketch14.setExpression("Constraints[8]", "Params.sketch14_width")
sketch14.setExpression("Constraints[9]", "Params.sketch14_height")
pad5 = body.newObject("PartDesign::Pad", "Pad004")
pad5.Profile = sketch14
pad5.setExpression("Length", "Params.pad5_length")
pad5.Reversed = True
body2 = doc.addObject("PartDesign::Body", "Body001")

# Sketch on XZ plane
sketch15 = body2.newObject("Sketcher::SketchObject", "Sketch014")
sketch15.AttachmentSupport = (doc.getObject("XZ_Plane001"), [""])
sketch15.MapMode = "FlatFace"
sketch15.AttachmentOffset = App.Placement(V(0, 0, -1.4 * 25.4), App.Rotation())
sketch15.addGeometry(Part.Circle(V(17.78, 17.78, 0), V(0, 0, 1), 1.7), False)
sketch15.addConstraint([
    Sketcher.Constraint("DistanceX", -1, 1, 0, 3, Q("0.7 in")),
    Sketcher.Constraint("DistanceY", -1, 1, 0, 3, Q("0.7 in")),
    Sketcher.Constraint("Diameter", 0, 3.4),
])
pad6 = body2.newObject("PartDesign::Pad", "Pad005")
pad6.Profile = sketch15
pad6.setExpression("Length", "Params.pad6_length")
pad6.Reversed = True
body3 = doc.addObject("PartDesign::Body", "Body002")

# Sketch on XZ plane
sketch16 = body3.newObject("Sketcher::SketchObject", "Sketch015")
sketch16.AttachmentSupport = (doc.getObject("XZ_Plane002"), [""])
sketch16.MapMode = "FlatFace"
sketch16.AttachmentOffset = App.Placement(V(0, 0, -1.4 * 25.4), App.Rotation())
sketch16.addGeometry(Part.Circle(V(17.78, -17.78, 0), V(0, 0, 1), 1.7), False)
sketch16.addConstraint([
    Sketcher.Constraint("DistanceX", -1, 1, 0, 3, Q("0.7 in")),
    Sketcher.Constraint("DistanceY", 0, 3, -1, 1, Q("0.7 in")),
    Sketcher.Constraint("Diameter", 0, 3.4),
])
pad7 = body3.newObject("PartDesign::Pad", "Pad006")
pad7.Profile = sketch16
pad7.setExpression("Length", "Params.pad7_length")
pad7.Reversed = True

doc.recompute()
